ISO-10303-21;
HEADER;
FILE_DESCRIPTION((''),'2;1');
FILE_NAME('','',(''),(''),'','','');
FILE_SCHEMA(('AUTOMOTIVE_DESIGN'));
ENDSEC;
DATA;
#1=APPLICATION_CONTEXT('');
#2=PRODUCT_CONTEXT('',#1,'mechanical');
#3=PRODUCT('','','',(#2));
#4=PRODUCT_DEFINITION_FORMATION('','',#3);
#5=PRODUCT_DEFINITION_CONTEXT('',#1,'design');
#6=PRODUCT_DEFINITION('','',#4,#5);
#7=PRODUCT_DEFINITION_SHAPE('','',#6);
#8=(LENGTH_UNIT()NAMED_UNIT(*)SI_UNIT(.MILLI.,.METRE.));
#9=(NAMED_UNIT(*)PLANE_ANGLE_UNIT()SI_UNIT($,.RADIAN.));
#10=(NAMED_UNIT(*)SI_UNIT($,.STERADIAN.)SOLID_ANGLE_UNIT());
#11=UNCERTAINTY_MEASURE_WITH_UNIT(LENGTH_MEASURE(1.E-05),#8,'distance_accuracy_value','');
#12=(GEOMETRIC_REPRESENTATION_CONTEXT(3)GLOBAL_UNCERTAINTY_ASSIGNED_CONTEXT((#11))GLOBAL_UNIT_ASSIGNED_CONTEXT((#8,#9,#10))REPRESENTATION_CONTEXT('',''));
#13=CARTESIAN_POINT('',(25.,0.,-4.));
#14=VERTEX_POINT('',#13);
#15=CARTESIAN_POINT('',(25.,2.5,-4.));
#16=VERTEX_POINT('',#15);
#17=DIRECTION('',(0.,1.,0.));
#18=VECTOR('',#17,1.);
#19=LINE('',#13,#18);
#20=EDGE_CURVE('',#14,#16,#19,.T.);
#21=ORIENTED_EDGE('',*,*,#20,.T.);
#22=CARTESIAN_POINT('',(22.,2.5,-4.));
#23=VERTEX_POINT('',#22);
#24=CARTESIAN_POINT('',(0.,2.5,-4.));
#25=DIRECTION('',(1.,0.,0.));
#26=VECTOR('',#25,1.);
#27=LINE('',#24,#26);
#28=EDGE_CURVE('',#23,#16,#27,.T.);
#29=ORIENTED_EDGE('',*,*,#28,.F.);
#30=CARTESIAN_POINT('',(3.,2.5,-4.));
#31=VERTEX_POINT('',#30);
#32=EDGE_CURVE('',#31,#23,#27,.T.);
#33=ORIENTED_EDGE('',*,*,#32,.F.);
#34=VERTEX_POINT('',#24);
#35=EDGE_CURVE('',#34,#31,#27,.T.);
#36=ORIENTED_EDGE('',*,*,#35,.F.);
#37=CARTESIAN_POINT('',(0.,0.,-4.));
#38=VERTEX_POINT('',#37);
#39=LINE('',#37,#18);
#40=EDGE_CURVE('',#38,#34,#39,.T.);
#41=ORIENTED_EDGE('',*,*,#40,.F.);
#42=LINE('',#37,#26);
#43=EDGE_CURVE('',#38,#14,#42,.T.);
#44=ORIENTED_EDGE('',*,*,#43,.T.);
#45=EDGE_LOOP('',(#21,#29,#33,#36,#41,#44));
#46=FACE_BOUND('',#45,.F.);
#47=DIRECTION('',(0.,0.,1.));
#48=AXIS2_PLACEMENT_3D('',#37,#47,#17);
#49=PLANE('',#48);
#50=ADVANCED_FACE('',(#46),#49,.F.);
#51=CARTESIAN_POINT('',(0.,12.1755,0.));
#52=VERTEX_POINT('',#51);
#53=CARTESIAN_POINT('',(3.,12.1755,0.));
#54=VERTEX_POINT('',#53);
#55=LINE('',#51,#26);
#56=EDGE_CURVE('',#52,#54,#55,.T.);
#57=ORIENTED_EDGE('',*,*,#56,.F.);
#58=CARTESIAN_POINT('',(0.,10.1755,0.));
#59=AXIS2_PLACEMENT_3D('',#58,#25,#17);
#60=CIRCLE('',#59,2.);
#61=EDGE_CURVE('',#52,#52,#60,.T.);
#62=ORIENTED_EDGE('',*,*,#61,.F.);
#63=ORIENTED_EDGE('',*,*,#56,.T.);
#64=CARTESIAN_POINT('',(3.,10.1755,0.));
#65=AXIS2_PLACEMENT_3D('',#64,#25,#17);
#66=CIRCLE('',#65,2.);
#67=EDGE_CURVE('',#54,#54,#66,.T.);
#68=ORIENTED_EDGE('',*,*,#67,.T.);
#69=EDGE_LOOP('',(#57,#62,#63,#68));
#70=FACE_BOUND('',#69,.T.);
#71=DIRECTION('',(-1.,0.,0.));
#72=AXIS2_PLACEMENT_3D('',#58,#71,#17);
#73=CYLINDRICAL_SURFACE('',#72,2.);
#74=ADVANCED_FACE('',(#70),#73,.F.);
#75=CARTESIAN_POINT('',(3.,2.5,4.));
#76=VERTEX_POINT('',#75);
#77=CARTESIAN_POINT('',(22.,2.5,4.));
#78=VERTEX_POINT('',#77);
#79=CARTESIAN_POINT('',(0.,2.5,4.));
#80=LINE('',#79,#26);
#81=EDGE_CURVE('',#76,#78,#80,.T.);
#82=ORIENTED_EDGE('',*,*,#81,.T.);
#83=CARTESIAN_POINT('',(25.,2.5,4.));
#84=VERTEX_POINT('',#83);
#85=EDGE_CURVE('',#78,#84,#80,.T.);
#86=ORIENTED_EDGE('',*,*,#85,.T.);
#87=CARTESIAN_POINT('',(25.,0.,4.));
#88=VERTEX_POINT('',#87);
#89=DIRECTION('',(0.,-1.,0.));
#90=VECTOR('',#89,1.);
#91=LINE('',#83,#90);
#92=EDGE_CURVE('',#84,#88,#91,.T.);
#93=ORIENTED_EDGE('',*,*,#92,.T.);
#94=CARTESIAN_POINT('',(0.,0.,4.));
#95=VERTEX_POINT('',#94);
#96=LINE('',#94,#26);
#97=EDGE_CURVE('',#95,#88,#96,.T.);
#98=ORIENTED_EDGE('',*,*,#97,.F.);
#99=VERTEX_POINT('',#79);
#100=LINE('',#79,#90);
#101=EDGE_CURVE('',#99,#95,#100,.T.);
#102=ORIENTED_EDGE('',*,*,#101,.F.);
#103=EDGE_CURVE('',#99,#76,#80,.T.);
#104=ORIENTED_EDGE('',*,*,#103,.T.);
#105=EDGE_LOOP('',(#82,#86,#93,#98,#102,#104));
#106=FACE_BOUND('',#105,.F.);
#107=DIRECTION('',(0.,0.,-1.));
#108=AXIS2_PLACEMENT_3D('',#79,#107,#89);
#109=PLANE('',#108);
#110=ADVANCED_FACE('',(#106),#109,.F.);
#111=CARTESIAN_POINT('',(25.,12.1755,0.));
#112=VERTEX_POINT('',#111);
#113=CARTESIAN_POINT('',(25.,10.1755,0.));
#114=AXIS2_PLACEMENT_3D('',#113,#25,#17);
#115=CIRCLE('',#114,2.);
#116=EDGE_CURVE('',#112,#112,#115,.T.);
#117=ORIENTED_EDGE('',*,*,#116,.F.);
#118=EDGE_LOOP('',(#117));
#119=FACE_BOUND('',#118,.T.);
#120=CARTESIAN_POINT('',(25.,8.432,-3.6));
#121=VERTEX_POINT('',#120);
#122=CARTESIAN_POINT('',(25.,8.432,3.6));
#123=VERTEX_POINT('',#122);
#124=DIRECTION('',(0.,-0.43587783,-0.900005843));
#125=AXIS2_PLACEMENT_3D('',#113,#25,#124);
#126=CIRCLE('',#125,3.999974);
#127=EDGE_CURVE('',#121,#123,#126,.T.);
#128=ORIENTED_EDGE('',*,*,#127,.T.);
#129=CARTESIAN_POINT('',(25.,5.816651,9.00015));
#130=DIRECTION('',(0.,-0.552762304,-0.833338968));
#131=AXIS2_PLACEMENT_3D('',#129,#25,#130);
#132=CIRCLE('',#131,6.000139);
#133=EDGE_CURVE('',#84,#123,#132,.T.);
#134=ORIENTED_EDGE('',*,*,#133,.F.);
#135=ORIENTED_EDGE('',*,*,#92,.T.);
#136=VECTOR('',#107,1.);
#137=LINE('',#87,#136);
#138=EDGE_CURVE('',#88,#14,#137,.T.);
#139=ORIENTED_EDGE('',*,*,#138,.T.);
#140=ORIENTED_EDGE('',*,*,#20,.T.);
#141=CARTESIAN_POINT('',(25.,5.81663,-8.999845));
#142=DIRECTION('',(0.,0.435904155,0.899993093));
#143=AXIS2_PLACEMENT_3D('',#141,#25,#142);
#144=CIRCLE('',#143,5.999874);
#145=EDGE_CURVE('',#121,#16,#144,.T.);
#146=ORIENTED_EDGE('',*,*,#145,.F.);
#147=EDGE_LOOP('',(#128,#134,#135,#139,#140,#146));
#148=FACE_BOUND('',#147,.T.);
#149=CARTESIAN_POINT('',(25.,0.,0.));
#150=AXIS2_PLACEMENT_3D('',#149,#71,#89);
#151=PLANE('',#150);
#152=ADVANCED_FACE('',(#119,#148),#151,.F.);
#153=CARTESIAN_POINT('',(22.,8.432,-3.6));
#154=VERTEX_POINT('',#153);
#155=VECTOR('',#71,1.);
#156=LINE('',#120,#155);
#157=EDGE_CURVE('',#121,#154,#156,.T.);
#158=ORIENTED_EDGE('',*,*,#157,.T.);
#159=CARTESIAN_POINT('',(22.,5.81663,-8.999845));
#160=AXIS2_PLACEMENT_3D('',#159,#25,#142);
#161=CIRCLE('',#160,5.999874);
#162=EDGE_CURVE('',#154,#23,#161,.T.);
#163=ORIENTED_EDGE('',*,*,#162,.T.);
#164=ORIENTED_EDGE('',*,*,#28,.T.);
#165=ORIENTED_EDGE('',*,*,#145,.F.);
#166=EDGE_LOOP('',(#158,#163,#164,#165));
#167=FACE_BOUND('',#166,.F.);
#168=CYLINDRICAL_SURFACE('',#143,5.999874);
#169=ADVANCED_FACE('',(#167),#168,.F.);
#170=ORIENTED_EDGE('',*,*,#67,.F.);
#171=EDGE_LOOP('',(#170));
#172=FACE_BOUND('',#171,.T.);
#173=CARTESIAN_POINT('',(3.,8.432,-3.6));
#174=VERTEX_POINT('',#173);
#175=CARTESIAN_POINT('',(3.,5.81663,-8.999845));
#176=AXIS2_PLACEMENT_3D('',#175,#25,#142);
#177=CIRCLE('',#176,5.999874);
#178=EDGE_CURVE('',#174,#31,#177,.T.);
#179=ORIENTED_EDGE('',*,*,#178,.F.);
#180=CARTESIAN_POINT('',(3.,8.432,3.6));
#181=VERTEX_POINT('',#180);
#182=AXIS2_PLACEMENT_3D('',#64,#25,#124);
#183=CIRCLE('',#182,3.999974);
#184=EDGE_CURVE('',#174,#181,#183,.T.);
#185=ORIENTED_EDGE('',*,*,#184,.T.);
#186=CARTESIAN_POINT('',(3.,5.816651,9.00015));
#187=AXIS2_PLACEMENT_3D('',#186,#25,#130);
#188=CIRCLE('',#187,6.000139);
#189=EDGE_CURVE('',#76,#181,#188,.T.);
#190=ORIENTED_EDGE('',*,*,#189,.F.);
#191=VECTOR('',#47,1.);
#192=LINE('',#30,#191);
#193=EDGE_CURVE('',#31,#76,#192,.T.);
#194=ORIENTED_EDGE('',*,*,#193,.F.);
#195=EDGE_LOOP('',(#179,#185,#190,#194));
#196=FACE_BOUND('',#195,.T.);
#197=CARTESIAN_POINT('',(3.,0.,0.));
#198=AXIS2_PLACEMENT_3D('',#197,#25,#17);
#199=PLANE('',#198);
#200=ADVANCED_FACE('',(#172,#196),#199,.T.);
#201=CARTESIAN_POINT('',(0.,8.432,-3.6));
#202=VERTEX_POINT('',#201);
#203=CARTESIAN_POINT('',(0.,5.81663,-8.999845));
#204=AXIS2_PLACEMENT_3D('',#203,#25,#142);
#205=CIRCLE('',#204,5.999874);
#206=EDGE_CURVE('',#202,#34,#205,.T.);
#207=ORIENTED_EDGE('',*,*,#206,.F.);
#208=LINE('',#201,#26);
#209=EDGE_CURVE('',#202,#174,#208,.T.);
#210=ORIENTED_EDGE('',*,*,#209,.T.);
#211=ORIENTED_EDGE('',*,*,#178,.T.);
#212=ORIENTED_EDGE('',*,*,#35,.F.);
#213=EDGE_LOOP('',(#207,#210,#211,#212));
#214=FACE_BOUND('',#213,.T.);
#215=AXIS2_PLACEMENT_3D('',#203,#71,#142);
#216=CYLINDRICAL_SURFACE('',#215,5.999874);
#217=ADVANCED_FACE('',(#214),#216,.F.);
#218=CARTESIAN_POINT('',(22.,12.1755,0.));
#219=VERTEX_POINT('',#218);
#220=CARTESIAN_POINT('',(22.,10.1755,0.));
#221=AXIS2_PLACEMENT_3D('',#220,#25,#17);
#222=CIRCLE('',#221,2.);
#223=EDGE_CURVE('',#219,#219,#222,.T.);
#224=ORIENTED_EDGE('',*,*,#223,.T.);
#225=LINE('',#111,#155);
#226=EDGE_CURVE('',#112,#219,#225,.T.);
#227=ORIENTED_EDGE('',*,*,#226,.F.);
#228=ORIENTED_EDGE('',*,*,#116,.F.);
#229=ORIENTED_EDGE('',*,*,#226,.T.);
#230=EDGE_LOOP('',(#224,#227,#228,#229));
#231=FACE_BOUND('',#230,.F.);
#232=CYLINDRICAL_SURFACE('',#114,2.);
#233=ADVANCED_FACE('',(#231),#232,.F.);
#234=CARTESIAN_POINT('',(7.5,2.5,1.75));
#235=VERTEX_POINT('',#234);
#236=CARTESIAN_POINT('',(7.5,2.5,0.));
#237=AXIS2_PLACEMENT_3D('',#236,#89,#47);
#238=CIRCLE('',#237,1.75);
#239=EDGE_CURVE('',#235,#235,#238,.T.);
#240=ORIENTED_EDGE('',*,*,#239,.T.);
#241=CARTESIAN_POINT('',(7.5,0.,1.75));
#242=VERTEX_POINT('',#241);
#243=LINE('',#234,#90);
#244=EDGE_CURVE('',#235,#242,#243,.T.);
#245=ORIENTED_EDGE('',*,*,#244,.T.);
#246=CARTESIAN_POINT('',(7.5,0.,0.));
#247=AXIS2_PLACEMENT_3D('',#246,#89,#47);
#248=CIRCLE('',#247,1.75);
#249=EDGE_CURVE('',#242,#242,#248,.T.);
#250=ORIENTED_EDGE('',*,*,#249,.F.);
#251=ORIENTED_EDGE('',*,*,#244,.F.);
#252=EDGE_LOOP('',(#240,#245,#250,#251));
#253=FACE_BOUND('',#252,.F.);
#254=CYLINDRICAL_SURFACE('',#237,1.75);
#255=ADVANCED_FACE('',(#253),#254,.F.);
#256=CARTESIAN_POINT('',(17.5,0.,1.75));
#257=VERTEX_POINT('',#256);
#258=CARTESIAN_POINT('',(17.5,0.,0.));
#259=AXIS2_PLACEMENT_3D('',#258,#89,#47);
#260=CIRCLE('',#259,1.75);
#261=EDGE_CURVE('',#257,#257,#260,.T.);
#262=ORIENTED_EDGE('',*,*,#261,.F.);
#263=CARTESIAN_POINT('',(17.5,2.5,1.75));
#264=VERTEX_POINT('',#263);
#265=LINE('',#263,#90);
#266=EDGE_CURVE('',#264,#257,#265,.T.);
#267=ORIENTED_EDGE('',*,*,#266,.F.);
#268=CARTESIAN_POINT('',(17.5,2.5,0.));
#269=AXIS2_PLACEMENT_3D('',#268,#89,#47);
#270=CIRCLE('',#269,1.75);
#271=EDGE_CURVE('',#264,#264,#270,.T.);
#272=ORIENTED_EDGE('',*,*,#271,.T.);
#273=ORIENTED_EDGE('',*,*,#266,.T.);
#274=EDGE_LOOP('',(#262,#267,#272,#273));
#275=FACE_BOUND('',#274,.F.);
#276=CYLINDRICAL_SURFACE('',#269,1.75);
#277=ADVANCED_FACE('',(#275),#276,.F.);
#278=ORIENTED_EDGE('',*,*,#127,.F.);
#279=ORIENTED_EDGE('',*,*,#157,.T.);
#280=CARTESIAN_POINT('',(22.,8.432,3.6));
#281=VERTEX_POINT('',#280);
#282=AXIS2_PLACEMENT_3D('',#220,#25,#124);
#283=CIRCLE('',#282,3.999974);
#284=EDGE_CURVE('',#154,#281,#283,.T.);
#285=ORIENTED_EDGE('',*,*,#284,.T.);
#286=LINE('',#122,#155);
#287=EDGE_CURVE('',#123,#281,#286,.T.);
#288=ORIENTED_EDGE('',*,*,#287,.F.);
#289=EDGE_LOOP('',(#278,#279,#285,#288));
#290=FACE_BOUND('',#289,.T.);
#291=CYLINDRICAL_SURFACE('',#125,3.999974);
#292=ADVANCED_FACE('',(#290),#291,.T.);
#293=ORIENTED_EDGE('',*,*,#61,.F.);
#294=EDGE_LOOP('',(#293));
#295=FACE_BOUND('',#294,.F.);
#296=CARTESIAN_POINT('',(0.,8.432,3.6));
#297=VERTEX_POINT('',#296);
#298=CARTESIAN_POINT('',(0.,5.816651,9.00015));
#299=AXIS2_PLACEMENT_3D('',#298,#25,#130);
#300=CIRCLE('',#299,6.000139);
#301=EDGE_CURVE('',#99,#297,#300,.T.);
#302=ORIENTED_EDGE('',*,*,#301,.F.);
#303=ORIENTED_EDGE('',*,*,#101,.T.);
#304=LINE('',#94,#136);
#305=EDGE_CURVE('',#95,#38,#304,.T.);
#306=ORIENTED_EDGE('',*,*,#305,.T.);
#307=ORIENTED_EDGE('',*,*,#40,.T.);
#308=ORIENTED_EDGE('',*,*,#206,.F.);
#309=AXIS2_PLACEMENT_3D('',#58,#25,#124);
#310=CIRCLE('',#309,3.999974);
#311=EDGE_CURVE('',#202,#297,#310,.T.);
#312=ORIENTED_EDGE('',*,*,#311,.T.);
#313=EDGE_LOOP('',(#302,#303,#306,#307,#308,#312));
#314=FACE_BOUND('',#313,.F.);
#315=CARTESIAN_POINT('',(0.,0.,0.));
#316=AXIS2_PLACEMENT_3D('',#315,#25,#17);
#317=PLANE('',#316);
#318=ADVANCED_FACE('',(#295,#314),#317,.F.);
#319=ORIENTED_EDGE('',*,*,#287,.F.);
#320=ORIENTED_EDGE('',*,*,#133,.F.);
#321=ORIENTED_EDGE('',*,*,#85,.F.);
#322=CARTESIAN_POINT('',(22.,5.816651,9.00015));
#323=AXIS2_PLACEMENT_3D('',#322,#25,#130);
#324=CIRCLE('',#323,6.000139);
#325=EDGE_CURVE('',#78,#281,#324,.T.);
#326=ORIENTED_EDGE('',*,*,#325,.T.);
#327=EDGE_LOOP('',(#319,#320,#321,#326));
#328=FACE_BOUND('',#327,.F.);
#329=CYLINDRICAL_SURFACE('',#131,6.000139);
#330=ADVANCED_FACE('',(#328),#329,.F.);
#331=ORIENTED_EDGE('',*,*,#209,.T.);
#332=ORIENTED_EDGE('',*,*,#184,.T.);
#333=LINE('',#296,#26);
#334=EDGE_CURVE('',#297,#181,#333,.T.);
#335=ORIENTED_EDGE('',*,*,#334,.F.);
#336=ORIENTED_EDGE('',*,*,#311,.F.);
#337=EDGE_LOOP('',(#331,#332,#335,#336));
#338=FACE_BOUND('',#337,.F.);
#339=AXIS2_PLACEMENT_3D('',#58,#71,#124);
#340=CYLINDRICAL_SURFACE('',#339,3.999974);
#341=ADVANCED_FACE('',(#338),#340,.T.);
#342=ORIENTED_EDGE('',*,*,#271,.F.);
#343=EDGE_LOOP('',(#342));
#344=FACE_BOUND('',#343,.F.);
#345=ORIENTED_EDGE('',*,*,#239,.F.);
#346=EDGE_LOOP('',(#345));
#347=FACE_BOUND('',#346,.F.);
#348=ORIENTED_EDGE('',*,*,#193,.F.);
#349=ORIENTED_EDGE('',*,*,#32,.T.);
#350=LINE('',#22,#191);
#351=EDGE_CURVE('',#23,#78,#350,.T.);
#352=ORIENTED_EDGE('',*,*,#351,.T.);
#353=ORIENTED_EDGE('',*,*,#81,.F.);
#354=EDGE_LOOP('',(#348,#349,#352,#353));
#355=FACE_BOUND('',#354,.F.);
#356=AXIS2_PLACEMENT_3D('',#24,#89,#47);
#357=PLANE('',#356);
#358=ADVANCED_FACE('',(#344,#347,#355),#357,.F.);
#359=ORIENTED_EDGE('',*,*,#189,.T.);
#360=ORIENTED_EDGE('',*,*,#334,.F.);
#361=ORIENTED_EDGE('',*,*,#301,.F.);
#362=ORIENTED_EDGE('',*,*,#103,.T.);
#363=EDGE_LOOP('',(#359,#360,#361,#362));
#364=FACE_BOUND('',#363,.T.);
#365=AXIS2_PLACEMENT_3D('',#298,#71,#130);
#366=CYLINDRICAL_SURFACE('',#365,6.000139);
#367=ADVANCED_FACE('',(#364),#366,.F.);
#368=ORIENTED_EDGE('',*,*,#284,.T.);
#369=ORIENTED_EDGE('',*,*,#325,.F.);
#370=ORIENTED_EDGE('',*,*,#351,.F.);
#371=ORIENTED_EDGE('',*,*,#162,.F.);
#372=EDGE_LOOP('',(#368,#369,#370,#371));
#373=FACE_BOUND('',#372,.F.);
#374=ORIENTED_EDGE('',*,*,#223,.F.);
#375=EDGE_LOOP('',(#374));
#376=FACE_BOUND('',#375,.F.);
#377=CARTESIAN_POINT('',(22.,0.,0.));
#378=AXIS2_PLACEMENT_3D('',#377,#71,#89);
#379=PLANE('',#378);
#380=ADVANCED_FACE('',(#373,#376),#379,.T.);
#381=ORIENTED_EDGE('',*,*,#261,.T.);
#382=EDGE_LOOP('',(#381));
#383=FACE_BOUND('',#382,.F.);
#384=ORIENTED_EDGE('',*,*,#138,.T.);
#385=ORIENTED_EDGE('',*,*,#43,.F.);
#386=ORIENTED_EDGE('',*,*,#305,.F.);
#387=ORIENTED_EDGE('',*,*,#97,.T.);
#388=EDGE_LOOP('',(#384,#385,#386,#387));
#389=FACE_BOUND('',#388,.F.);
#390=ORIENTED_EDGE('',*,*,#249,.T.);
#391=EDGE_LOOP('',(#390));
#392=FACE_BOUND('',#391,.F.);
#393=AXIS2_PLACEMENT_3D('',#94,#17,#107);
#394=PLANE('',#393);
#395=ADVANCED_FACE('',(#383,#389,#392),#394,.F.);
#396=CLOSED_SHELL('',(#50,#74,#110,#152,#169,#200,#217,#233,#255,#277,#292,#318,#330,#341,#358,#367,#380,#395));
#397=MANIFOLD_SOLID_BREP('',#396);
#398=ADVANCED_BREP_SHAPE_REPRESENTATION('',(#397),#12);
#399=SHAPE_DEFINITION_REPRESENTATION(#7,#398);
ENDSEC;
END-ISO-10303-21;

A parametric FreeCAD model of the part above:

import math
import FreeCAD as App
import Part
import Sketcher
from FreeCAD import Vector


def add_polygon(sketch, points):
    """Adds a closed chain of lines whose ends are joined by coincident constraints."""
    first, n = sketch.GeometryCount, len(points)
    for a, b in zip(points, points[1:] + points[:1]):
        sketch.addGeometry(Part.LineSegment(App.Vector(*a, 0), App.Vector(*b, 0)), False)
    for i in range(n):
        sketch.addConstraint(Sketcher.Constraint("Coincident", first + i, 2, first + (i + 1) % n, 1))

doc = App.newDocument("Part")
body = doc.addObject("PartDesign::Body", "Body")

sketch1 = doc.addObject("Sketcher::SketchObject", "Sketch")
body.addObject(sketch1)
sketch1.AttachmentSupport = (doc.YZ_Plane, [""])
sketch1.MapMode = "FlatFace"
add_polygon(sketch1, [(2.5, -4), (2.5, 4), (0, 4), (0, -4)])
sketch1.addConstraint([
    Sketcher.Constraint("Vertical", 0),
    Sketcher.Constraint("Horizontal", 1),
    Sketcher.Constraint("Vertical", 2),
    Sketcher.Constraint("Horizontal", 3),
    Sketcher.Constraint("Symmetric", 1, 2, 2, 2, -1, 1),
    Sketcher.Constraint("DistanceY", 0, 1, 0, 2, 8.0),
    Sketcher.Constraint("DistanceX", 1, 2, 1, 1, 2.5),
])
pad1 = doc.addObject("PartDesign::Pad", "Pad")
body.addObject(pad1)
pad1.Profile = sketch1
pad1.Length = 25

sketch2 = doc.addObject("Sketcher::SketchObject", "Sketch001")
body.addObject(sketch2)
sketch2.AttachmentSupport = (doc.YZ_Plane, [""])
sketch2.MapMode = "FlatFace"
sketch2.addGeometry([
    Part.ArcOfCircle(Part.Circle(Vector(5.8, 9, 0), Vector(0, 0, 1), 6), math.radians(-124), math.radians(-64)),
    Part.LineSegment(Vector(2.5, 4, 0), Vector(2.5, -4, 0)),
    Part.ArcOfCircle(Part.Circle(Vector(5.8, -9, 0), Vector(0, 0, 1), 6), math.radians(64), math.radians(124)),
    Part.ArcOfCircle(Part.Circle(Vector(10.2, 0, 0), Vector(0, 0, 1), 4), math.radians(-116), math.radians(116)),
    Part.Circle(Vector(10.2, 0, 0), Vector(0, 0, 1), 2),
], False)
sketch2.addConstraint([
    Sketcher.Constraint("Coincident", 0, 1, 1, 1),
    Sketcher.Constraint("Coincident", 1, 2, 2, 2),
    Sketcher.Constraint("Tangent", 2, 1, 3, 1),
    Sketcher.Constraint("Tangent", 3, 2, 0, 2),
    Sketcher.Constraint("Vertical", 1),
    Sketcher.Constraint("Coincident", 4, 3, 3, 3),
    Sketcher.Constraint("Equal", 0, 2),
    Sketcher.Constraint("Symmetric", 0, 3, 2, 3, -1),
    Sketcher.Constraint("Diameter", 4, 4.0),
    Sketcher.Constraint("Radius", 0, 6.0),
    Sketcher.Constraint("Radius", 3, 4.0),
    Sketcher.Constraint("DistanceY", 1, 2, 1, 1, 8.0),
    Sketcher.Constraint("DistanceY", 2, 3, 0, 3, 18.0),
    Sketcher.Constraint("DistanceX", -1, 1, 0, 1, 2.5),
])
pad2 = doc.addObject("PartDesign::Pad", "Pad001")
body.addObject(pad2)
pad2.Profile = sketch2
pad2.Length = 3
doc.recompute()

datumplane = doc.addObject("PartDesign::Plane", "DatumPlane")
body.addObject(datumplane)
datumplane.AttachmentSupport = (doc.YZ_Plane, [""])
datumplane.MapMode = "FlatFace"
datumplane.AttachmentOffset = App.Placement(Vector(0, 0, 12.5), App.Rotation())
mirrored = doc.addObject("PartDesign::Mirrored", "Mirrored")
body.addObject(mirrored)
mirrored.Originals = [pad2]
mirrored.MirrorPlane = (datumplane, [""])
body.Tip = mirrored

sketch3 = doc.addObject("Sketcher::SketchObject", "Sketch002")
body.addObject(sketch3)
sketch3.AttachmentSupport = (doc.XZ_Plane, [""])
sketch3.MapMode = "FlatFace"
sketch3.AttachmentOffset = App.Placement(Vector(0, 0, -2.5), App.Rotation())
sketch3.addGeometry([
    Part.Circle(Vector(7.5, 0, 0), Vector(0, 0, 1), 1.8),
    Part.Circle(Vector(17.5, 0, 0), Vector(0, 0, 1), 1.8),
], False)
sketch3.addConstraint([
    Sketcher.Constraint("Equal", 0, 1),
    Sketcher.Constraint("PointOnObject", 0, 3, -1),
    Sketcher.Constraint("PointOnObject", 1, 3, -1),
    Sketcher.Constraint("Diameter", 0, 3.5),
    Sketcher.Constraint("DistanceX", 0, 3, 1, 3, 10.0),
    Sketcher.Constraint("DistanceX", -1, 1, 0, 3, 7.5),
])
doc.recompute()
hole = doc.addObject("PartDesign::Hole", "Hole")
body.addObject(hole)
hole.Profile = sketch3
hole.ThreadType = "None"
hole.Diameter = 3.5
hole.DepthType = "Dimension"
hole.Depth = 2.5
hole.DrillPoint = "Flat"
hole.Reversed = True

doc.recompute()
